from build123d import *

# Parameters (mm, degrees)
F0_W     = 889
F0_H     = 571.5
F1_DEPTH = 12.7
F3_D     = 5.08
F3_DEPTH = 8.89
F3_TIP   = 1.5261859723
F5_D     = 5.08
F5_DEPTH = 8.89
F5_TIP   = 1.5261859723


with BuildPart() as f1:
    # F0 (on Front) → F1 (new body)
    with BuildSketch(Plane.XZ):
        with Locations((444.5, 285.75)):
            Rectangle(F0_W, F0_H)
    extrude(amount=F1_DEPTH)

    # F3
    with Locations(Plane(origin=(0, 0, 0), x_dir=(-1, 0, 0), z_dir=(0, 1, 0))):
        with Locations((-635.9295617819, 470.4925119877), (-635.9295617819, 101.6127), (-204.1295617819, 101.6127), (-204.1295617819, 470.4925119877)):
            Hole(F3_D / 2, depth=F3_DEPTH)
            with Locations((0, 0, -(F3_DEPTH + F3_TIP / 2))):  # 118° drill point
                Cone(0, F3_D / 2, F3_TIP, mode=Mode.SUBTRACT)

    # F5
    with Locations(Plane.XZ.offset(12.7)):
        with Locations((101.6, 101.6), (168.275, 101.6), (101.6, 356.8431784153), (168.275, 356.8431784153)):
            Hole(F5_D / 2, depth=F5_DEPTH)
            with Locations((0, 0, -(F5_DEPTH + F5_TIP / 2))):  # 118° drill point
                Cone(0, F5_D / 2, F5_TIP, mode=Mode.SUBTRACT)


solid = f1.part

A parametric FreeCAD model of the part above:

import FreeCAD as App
import Part
import Sketcher
Q = App.Units.Quantity

doc = App.newDocument("Part")
params = doc.addObject("Spreadsheet::Sheet", "Params")
for row, (alias, value) in enumerate([
    ("sketch1_width", "35 in"),
    ("sketch1_height", "22.5 in"),
    ("pad1_length", "0.5 in"),
    ("sketch2_diameter", "0.2 in"),
    ("hole_diameter", "0.2 in"),
    ("hole_depth", "0.35 in"),
    ("sketch3_diameter", "0.2 in"),
    ("hole2_diameter", "0.2 in"),
    ("hole2_depth", "0.35 in"),
], start=1):
    params.set(f"A{row}", alias)
    params.set(f"B{row}", "=" + value)
    params.setAlias(f"B{row}", alias)

body = doc.addObject("PartDesign::Body", "Body")

# Sketch on XZ plane
sketch1 = doc.addObject("Sketcher::SketchObject", "Sketch")
body.addObject(sketch1)
sketch1.AttachmentSupport = (doc.XZ_Plane, [""])
sketch1.MapMode = "FlatFace"
sketch1.addGeometry(Part.LineSegment(App.Vector(0, 572, 0), App.Vector(0, 0, 0)), False)
sketch1.addGeometry(Part.LineSegment(App.Vector(0, 0, 0), App.Vector(889, 0, 0)), False)
sketch1.addGeometry(Part.LineSegment(App.Vector(889, 0, 0), App.Vector(889, 572, 0)), False)
sketch1.addGeometry(Part.LineSegment(App.Vector(889, 572, 0), App.Vector(0, 572, 0)), False)
sketch1.addConstraint(Sketcher.Constraint("Coincident", 0, 2, 1, 1))
sketch1.addConstraint(Sketcher.Constraint("Coincident", 1, 2, 2, 1))
sketch1.addConstraint(Sketcher.Constraint("Coincident", 2, 2, 3, 1))
sketch1.addConstraint(Sketcher.Constraint("Coincident", 3, 2, 0, 1))
sketch1.addConstraint(Sketcher.Constraint("Vertical", 0))
sketch1.addConstraint(Sketcher.Constraint("Horizontal", 1))
sketch1.addConstraint(Sketcher.Constraint("Vertical", 2))
sketch1.addConstraint(Sketcher.Constraint("Horizontal", 3))
sketch1.addConstraint(Sketcher.Constraint("Coincident", 0, 2, -1, 1))
sketch1.addConstraint(Sketcher.Constraint("DistanceX", 1, 1, 1, 2, Q("35 in")))
sketch1.addConstraint(Sketcher.Constraint("DistanceY", 0, 2, 0, 1, Q("22.5 in")))
sketch1.setExpression("Constraints[9]", "Params.sketch1_width")
sketch1.setExpression("Constraints[10]", "Params.sketch1_height")
pad1 = doc.addObject("PartDesign::Pad", "Pad")
body.addObject(pad1)
pad1.Profile = sketch1
pad1.setExpression("Length", "Params.pad1_length")

# Sketch on XZ plane
sketch2 = doc.addObject("Sketcher::SketchObject", "Sketch001")
body.addObject(sketch2)
sketch2.AttachmentSupport = (doc.XZ_Plane, [""])
sketch2.MapMode = "FlatFace"
sketch2.addGeometry(Part.Circle(App.Vector(635.9, 470.5, 0), App.Vector(0, 0, 1), 2.5), False)
sketch2.addGeometry(Part.Circle(App.Vector(635.9, 101.6, 0), App.Vector(0, 0, 1), 2.5), False)
sketch2.addGeometry(Part.Circle(App.Vector(204.1, 101.6, 0), App.Vector(0, 0, 1), 2.5), False)
sketch2.addGeometry(Part.Circle(App.Vector(204.1, 470.5, 0), App.Vector(0, 0, 1), 2.5), False)
sketch2.addConstraint(Sketcher.Constraint("Equal", 0, 1))
sketch2.addConstraint(Sketcher.Constraint("Equal", 1, 2))
sketch2.addConstraint(Sketcher.Constraint("Equal", 2, 3))
sketch2.addConstraint(Sketcher.Constraint("Horizontal", 1, 3, 2, 3))
sketch2.addConstraint(Sketcher.Constraint("Horizontal", 0, 3, 3, 3))
sketch2.addConstraint(Sketcher.Constraint("Vertical", 0, 3, 1, 3))
sketch2.addConstraint(Sketcher.Constraint("Vertical", 2, 3, 3, 3))
sketch2.addConstraint(Sketcher.Constraint("Diameter", 0, Q("0.2 in")))
sketch2.addConstraint(Sketcher.Constraint("DistanceX", 2, 3, 1, 3, Q("17 in")))
sketch2.addConstraint(Sketcher.Constraint("DistanceY", -1, 1, 1, 3, Q("4.0005 in")))
sketch2.addConstraint(Sketcher.Constraint("DistanceX", -1, 1, 0, 3, 635.929562))
sketch2.addConstraint(Sketcher.Constraint("DistanceY", -1, 1, 0, 3, 470.492512))
sketch2.setExpression("Constraints[7]", "Params.sketch2_diameter")
doc.recompute()
hole = doc.addObject("PartDesign::Hole", "Hole")
body.addObject(hole)
hole.Profile = sketch2
hole.ThreadType = "None"
hole.setExpression("Diameter", "Params.hole_diameter")
hole.DepthType = "Dimension"
hole.setExpression("Depth", "Params.hole_depth")
hole.DrillPoint = "Angled"
hole.DrillPointAngle = 118
hole.Reversed = True

# Sketch on XZ plane
sketch3 = doc.addObject("Sketcher::SketchObject", "Sketch002")
body.addObject(sketch3)
sketch3.AttachmentSupport = (doc.XZ_Plane, [""])
sketch3.MapMode = "FlatFace"
sketch3.AttachmentOffset = App.Placement(App.Vector(0, 0, 0.5 * 25.4), App.Rotation())
sketch3.addGeometry(Part.Circle(App.Vector(101.6, 101.6, 0), App.Vector(0, 0, 1), 2.5), False)
sketch3.addGeometry(Part.Circle(App.Vector(168.3, 101.6, 0), App.Vector(0, 0, 1), 2.5), False)
sketch3.addGeometry(Part.Circle(App.Vector(101.6, 356.8, 0), App.Vector(0, 0, 1), 2.5), False)
sketch3.addGeometry(Part.Circle(App.Vector(168.3, 356.8, 0), App.Vector(0, 0, 1), 2.5), False)
sketch3.addConstraint(Sketcher.Constraint("Equal", 0, 1))
sketch3.addConstraint(Sketcher.Constraint("Equal", 1, 2))
sketch3.addConstraint(Sketcher.Constraint("Equal", 2, 3))
sketch3.addConstraint(Sketcher.Constraint("Horizontal", 0, 3, 1, 3))
sketch3.addConstraint(Sketcher.Constraint("Horizontal", 2, 3, 3, 3))
sketch3.addConstraint(Sketcher.Constraint("Vertical", 0, 3, 2, 3))
sketch3.addConstraint(Sketcher.Constraint("Vertical", 1, 3, 3, 3))
sketch3.addConstraint(Sketcher.Constraint("Diameter", 0, Q("0.2 in")))
sketch3.addConstraint(Sketcher.Constraint("DistanceX", -1, 1, 0, 3, Q("4 in")))
sketch3.addConstraint(Sketcher.Constraint("DistanceY", -1, 1, 0, 3, Q("4 in")))
sketch3.addConstraint(Sketcher.Constraint("DistanceX", -1, 1, 1, 3, Q("6.625 in")))
sketch3.addConstraint(Sketcher.Constraint("DistanceY", -1, 1, 2, 3, 356.843178))
sketch3.setExpression("Constraints[7]", "Params.sketch3_diameter")
doc.recompute()
hole2 = doc.addObject("PartDesign::Hole", "Hole001")
body.addObject(hole2)
hole2.Profile = sketch3
hole2.ThreadType = "None"
hole2.setExpression("Diameter", "Params.hole2_diameter")
hole2.DepthType = "Dimension"
hole2.setExpression("Depth", "Params.hole2_depth")
hole2.DrillPoint = "Angled"
hole2.DrillPointAngle = 118

doc.recompute()
